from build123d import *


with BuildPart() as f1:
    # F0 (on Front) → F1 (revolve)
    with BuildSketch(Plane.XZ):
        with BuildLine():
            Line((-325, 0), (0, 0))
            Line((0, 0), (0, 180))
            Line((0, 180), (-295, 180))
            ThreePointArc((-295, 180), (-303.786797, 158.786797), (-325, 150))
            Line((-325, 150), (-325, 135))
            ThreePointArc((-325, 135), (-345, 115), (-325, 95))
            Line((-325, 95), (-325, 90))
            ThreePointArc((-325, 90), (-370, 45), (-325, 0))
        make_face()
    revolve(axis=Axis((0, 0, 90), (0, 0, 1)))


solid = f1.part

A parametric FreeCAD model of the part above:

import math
import FreeCAD as App
import Part
import Sketcher
from FreeCAD import Vector

doc = App.newDocument("Part")
body = doc.addObject("PartDesign::Body", "Body")

sketch1 = body.newObject("Sketcher::SketchObject", "Sketch")
sketch1.AttachmentSupport = (doc.getObject("XZ_Plane"), [""])
sketch1.MapMode = "FlatFace"
sketch1.addGeometry(Part.LineSegment(Vector(-325, 0, 0), Vector(0, 0, 0)), False)
sketch1.addGeometry(Part.LineSegment(Vector(0, 0, 0), Vector(0, 180, 0)), False)
sketch1.addGeometry(Part.LineSegment(Vector(0, 180, 0), Vector(-295, 180, 0)), False)
sketch1.addGeometry(Part.ArcOfCircle(Part.Circle(Vector(-325, 180, 0), Vector(0, 0, 1), 30), math.radians(-90), math.radians(0)), False)
sketch1.addGeometry(Part.LineSegment(Vector(-325, 150, 0), Vector(-325, 135, 0)), False)
sketch1.addGeometry(Part.ArcOfCircle(Part.Circle(Vector(-325, 115, 0), Vector(0, 0, 1), 20), math.radians(90), math.radians(270)), False)
sketch1.addGeometry(Part.LineSegment(Vector(-325, 95, 0), Vector(-325, 90, 0)), False)
sketch1.addGeometry(Part.ArcOfCircle(Part.Circle(Vector(-325, 45, 0), Vector(0, 0, 1), 45), math.radians(90), math.radians(270)), False)
sketch1.addConstraint(Sketcher.Constraint("Coincident", 0, 2, 1, 1))
sketch1.addConstraint(Sketcher.Constraint("Coincident", 1, 2, 2, 1))
sketch1.addConstraint(Sketcher.Constraint("Coincident", 2, 2, 3, 2))
sketch1.addConstraint(Sketcher.Constraint("Coincident", 3, 1, 4, 1))
sketch1.addConstraint(Sketcher.Constraint("Coincident", 4, 2, 5, 1))
sketch1.addConstraint(Sketcher.Constraint("Coincident", 5, 2, 6, 1))
sketch1.addConstraint(Sketcher.Constraint("Coincident", 6, 2, 7, 1))
sketch1.addConstraint(Sketcher.Constraint("Tangent", 7, 2, 0, 1))
sketch1.addConstraint(Sketcher.Constraint("Horizontal", 0))
sketch1.addConstraint(Sketcher.Constraint("Vertical", 1))
sketch1.addConstraint(Sketcher.Constraint("Horizontal", 2))
sketch1.addConstraint(Sketcher.Constraint("Vertical", 4))
sketch1.addConstraint(Sketcher.Constraint("Vertical", 6))
sketch1.addConstraint(Sketcher.Constraint("Coincident", 0, 2, -1, 1))
sketch1.addConstraint(Sketcher.Constraint("Horizontal", 3, 3, 1, 2))
sketch1.addConstraint(Sketcher.Constraint("Vertical", 3, 3, 5, 3))
sketch1.addConstraint(Sketcher.Constraint("Vertical", 5, 3, 7, 3))
sketch1.addConstraint(Sketcher.Constraint("Vertical", 7, 3, 3, 1))
sketch1.addConstraint(Sketcher.Constraint("Vertical", 4, 2, 5, 2))
sketch1.addConstraint(Sketcher.Constraint("Radius", 3, 30.000001))
sketch1.addConstraint(Sketcher.Constraint("Radius", 5, 20.0))
sketch1.addConstraint(Sketcher.Constraint("Radius", 7, 45.0))
sketch1.addConstraint(Sketcher.Constraint("DistanceX", 0, 1, 0, 2, 325.0))
sketch1.addConstraint(Sketcher.Constraint("DistanceY", 1, 1, 1, 2, 180.0))
sketch1.addConstraint(Sketcher.Constraint("DistanceY", 4, 2, 4, 1, 15.0))
revolution = body.newObject("PartDesign::Revolution", "Revolution")
revolution.Profile = sketch1
revolution.ReferenceAxis = (sketch1, ["V_Axis"])
revolution.Angle = 360

doc.recompute()
